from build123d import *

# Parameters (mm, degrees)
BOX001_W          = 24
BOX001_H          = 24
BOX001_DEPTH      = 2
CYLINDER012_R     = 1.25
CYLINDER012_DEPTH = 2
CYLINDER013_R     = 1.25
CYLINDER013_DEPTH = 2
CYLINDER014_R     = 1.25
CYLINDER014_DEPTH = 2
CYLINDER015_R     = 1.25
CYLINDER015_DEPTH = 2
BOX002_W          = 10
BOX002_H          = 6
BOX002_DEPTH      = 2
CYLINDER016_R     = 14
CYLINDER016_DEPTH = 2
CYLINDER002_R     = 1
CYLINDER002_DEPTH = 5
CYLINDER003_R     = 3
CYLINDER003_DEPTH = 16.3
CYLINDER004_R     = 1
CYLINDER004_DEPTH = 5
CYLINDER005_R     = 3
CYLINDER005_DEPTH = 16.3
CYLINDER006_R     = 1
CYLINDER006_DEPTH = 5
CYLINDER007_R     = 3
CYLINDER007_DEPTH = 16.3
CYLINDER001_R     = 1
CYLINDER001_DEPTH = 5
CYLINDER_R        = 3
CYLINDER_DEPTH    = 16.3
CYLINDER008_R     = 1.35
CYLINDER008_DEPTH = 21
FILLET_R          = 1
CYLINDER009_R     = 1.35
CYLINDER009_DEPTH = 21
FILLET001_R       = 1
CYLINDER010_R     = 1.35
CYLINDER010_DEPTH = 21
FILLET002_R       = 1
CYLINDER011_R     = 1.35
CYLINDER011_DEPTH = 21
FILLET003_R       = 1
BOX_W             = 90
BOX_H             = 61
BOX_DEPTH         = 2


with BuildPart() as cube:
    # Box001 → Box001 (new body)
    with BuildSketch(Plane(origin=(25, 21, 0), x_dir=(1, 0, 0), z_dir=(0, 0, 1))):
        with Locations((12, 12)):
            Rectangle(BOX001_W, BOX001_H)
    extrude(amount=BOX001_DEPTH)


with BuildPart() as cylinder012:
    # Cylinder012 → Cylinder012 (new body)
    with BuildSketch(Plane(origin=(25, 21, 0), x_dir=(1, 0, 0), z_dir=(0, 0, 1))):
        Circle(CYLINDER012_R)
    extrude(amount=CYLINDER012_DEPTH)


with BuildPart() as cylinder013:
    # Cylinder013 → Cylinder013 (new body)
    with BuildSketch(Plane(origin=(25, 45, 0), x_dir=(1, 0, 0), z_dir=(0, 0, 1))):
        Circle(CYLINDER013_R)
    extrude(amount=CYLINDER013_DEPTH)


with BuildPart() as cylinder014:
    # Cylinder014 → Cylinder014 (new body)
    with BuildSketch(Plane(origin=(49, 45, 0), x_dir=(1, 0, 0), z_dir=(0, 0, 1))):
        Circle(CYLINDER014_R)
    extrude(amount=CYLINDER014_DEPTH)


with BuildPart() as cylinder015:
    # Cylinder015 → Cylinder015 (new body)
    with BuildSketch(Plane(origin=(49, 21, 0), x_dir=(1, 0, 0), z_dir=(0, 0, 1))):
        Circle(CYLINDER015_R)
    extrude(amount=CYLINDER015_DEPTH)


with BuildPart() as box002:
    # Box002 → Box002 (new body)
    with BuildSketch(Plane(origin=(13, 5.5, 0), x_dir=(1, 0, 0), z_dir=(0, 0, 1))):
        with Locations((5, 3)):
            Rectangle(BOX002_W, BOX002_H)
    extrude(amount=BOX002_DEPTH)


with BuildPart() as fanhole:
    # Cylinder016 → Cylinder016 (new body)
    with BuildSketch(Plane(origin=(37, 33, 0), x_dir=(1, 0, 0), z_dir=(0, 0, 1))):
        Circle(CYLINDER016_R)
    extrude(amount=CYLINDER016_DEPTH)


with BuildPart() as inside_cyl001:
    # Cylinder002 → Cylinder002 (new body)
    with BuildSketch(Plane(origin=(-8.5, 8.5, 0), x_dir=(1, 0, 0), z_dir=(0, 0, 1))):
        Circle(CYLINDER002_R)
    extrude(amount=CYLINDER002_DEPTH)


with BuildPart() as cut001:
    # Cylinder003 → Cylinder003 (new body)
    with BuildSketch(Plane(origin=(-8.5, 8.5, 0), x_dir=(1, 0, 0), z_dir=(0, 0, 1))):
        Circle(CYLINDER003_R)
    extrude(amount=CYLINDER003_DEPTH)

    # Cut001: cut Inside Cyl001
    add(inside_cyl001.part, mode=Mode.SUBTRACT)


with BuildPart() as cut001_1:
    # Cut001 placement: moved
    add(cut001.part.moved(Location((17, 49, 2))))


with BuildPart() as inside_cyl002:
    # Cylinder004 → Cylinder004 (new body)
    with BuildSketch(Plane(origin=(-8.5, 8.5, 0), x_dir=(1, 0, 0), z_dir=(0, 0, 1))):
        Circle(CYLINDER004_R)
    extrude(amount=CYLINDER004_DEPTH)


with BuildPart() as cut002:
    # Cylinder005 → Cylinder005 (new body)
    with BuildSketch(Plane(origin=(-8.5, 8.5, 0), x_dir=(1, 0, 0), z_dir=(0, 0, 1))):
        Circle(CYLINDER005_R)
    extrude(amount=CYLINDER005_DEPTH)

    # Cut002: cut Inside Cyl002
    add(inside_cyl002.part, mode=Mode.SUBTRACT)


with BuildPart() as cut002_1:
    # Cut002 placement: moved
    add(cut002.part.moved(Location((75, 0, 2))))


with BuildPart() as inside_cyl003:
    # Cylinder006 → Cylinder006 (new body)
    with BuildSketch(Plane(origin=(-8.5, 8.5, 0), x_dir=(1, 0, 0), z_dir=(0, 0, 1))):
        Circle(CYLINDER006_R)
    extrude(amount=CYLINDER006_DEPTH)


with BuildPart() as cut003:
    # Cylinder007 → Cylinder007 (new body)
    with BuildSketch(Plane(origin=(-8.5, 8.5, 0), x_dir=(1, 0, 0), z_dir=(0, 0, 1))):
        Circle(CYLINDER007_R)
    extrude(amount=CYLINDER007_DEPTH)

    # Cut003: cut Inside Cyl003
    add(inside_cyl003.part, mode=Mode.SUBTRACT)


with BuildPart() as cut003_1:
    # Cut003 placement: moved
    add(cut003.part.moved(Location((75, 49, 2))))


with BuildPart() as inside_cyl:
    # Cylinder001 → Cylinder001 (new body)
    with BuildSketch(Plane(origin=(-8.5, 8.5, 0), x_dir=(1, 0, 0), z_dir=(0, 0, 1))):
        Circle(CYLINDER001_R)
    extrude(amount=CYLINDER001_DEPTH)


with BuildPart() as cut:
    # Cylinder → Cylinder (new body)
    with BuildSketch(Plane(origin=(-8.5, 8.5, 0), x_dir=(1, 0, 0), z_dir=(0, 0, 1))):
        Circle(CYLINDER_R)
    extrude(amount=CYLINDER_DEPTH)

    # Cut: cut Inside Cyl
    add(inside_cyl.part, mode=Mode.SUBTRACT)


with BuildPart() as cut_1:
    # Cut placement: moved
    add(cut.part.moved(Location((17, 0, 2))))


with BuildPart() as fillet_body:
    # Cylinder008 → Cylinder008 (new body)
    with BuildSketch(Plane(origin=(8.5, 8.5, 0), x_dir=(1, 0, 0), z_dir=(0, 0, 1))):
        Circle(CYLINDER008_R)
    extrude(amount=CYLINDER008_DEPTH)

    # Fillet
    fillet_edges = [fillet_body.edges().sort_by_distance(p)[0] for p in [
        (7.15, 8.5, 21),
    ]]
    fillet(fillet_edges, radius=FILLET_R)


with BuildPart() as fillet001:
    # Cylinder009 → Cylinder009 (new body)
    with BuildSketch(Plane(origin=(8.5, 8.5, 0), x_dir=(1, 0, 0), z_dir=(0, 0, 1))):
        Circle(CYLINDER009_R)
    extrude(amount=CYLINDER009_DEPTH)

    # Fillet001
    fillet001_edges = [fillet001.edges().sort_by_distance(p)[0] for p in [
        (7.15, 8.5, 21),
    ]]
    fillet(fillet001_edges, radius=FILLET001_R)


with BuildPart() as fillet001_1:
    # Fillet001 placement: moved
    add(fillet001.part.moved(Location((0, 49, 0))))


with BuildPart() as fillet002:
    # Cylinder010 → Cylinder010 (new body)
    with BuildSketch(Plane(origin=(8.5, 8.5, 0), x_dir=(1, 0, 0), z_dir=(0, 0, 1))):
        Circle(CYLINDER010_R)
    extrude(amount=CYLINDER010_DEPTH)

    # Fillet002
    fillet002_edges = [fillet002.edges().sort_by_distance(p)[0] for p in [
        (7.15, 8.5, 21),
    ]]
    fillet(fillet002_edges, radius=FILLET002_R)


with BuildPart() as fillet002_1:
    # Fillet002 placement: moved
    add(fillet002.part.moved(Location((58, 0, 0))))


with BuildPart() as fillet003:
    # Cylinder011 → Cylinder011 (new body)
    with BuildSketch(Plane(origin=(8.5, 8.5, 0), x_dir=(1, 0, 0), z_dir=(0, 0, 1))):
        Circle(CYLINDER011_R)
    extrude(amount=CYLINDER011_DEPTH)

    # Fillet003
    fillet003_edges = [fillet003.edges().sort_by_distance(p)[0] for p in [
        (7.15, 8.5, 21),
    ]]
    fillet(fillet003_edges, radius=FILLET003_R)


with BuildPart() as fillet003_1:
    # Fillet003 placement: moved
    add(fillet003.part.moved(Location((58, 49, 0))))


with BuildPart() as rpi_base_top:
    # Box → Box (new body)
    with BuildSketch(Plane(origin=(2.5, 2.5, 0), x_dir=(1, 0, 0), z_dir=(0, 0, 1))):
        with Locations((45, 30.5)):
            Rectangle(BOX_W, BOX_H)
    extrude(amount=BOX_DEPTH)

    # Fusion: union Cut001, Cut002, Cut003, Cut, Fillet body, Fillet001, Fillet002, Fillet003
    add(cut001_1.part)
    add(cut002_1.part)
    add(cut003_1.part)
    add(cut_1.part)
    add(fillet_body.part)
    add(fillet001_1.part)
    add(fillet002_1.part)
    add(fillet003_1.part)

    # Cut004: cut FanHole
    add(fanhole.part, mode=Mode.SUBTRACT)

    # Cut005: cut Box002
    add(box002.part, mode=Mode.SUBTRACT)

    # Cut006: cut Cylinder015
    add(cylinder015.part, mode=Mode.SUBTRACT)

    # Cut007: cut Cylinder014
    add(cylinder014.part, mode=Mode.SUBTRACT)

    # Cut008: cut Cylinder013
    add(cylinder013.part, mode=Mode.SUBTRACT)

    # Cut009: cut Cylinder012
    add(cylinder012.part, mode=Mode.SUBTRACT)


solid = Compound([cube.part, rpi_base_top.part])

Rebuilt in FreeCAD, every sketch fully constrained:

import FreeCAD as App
import Part
import Sketcher

V = App.Vector


def edges_at(feature, points):
    """Names of the edges that pass closest to the given points."""
    edges = feature.Shape.Edges
    near = lambda p: min(range(len(edges)), key=lambda i: edges[i].distToShape(Part.Vertex(*p))[0])
    return sorted({f"Edge{near(p) + 1}" for p in points})


def add_polygon(sketch, points):
    """Adds a closed chain of lines whose ends are joined by coincident constraints."""
    first, n = sketch.GeometryCount, len(points)
    for a, b in zip(points, points[1:] + points[:1]):
        sketch.addGeometry(Part.LineSegment(App.Vector(*a, 0), App.Vector(*b, 0)), False)
    for i in range(n):
        sketch.addConstraint(Sketcher.Constraint("Coincident", first + i, 2, first + (i + 1) % n, 1))

doc = App.newDocument("Part")
body = doc.addObject("PartDesign::Body", "Body")

# Sketch on XY plane
sketch1 = body.newObject("Sketcher::SketchObject", "Sketch")
sketch1.AttachmentSupport = (doc.getObject("XY_Plane"), [""])
sketch1.MapMode = "FlatFace"
add_polygon(sketch1, [(25, 45), (25, 21), (49, 21), (49, 45)])  # lines 0-3
sketch1.addConstraint([
    Sketcher.Constraint("Vertical", 0),
    Sketcher.Constraint("Horizontal", 1),
    Sketcher.Constraint("Vertical", 2),
    Sketcher.Constraint("Horizontal", 3),
    Sketcher.Constraint("Equal", 3, 0),
    Sketcher.Constraint("DistanceX", 1, 1, 1, 2, 24.0),
    Sketcher.Constraint("DistanceX", -1, 1, 0, 2, 25.0),
    Sketcher.Constraint("DistanceY", -1, 1, 0, 2, 21.0),
])
pad1 = body.newObject("PartDesign::Pad", "Pad")
pad1.Profile = sketch1
pad1.Length = 2
body2 = doc.addObject("PartDesign::Body", "Body001")

# Sketch on XY plane
sketch2 = body2.newObject("Sketcher::SketchObject", "Sketch001")
sketch2.AttachmentSupport = (doc.getObject("XY_Plane001"), [""])
sketch2.MapMode = "FlatFace"
sketch2.addGeometry(Part.Circle(V(25, 21, 0), V(0, 0, 1), 1.2), False)
sketch2.addConstraint([
    Sketcher.Constraint("Diameter", 0, 2.5),
    Sketcher.Constraint("DistanceX", -1, 1, 0, 3, 25.0),
    Sketcher.Constraint("DistanceY", -1, 1, 0, 3, 21.0),
])
pad2 = body2.newObject("PartDesign::Pad", "Pad001")
pad2.Profile = sketch2
pad2.Length = 2
body3 = doc.addObject("PartDesign::Body", "Body002")

# Sketch on XY plane
sketch3 = body3.newObject("Sketcher::SketchObject", "Sketch002")
sketch3.AttachmentSupport = (doc.getObject("XY_Plane002"), [""])
sketch3.MapMode = "FlatFace"
sketch3.addGeometry(Part.Circle(V(25, 45, 0), V(0, 0, 1), 1.2), False)
sketch3.addConstraint([
    Sketcher.Constraint("Diameter", 0, 2.5),
    Sketcher.Constraint("DistanceX", -1, 1, 0, 3, 25.0),
    Sketcher.Constraint("DistanceY", -1, 1, 0, 3, 45.0),
])
pad3 = body3.newObject("PartDesign::Pad", "Pad002")
pad3.Profile = sketch3
pad3.Length = 2
body4 = doc.addObject("PartDesign::Body", "Body003")

# Sketch on XY plane
sketch4 = body4.newObject("Sketcher::SketchObject", "Sketch003")
sketch4.AttachmentSupport = (doc.getObject("XY_Plane003"), [""])
sketch4.MapMode = "FlatFace"
sketch4.addGeometry(Part.Circle(V(49, 45, 0), V(0, 0, 1), 1.2), False)
sketch4.addConstraint([
    Sketcher.Constraint("Diameter", 0, 2.5),
    Sketcher.Constraint("DistanceX", -1, 1, 0, 3, 49.0),
    Sketcher.Constraint("DistanceY", -1, 1, 0, 3, 45.0),
])
pad4 = body4.newObject("PartDesign::Pad", "Pad003")
pad4.Profile = sketch4
pad4.Length = 2
body5 = doc.addObject("PartDesign::Body", "Body004")

# Sketch on XY plane
sketch5 = body5.newObject("Sketcher::SketchObject", "Sketch004")
sketch5.AttachmentSupport = (doc.getObject("XY_Plane004"), [""])
sketch5.MapMode = "FlatFace"
sketch5.addGeometry(Part.Circle(V(49, 21, 0), V(0, 0, 1), 1.2), False)
sketch5.addConstraint([
    Sketcher.Constraint("Diameter", 0, 2.5),
    Sketcher.Constraint("DistanceX", -1, 1, 0, 3, 49.0),
    Sketcher.Constraint("DistanceY", -1, 1, 0, 3, 21.0),
])
pad5 = body5.newObject("PartDesign::Pad", "Pad004")
pad5.Profile = sketch5
pad5.Length = 2
body6 = doc.addObject("PartDesign::Body", "Body005")

# Sketch on XY plane
sketch6 = body6.newObject("Sketcher::SketchObject", "Sketch005")
sketch6.AttachmentSupport = (doc.getObject("XY_Plane005"), [""])
sketch6.MapMode = "FlatFace"
add_polygon(sketch6, [(13, 12), (13, 6), (23, 6), (23, 12)])  # lines 0-3
sketch6.addConstraint([
    Sketcher.Constraint("Vertical", 0),
    Sketcher.Constraint("Horizontal", 1),
    Sketcher.Constraint("Vertical", 2),
    Sketcher.Constraint("Horizontal", 3),
    Sketcher.Constraint("DistanceX", 1, 1, 1, 2, 10.0),
    Sketcher.Constraint("DistanceY", 0, 2, 0, 1, 6.0),
    Sketcher.Constraint("DistanceX", -1, 1, 0, 2, 13.0),
    Sketcher.Constraint("DistanceY", -1, 1, 0, 2, 5.5),
])
pad6 = body6.newObject("PartDesign::Pad", "Pad005")
pad6.Profile = sketch6
pad6.Length = 2
body7 = doc.addObject("PartDesign::Body", "Body006")

# Sketch on XY plane
sketch7 = body7.newObject("Sketcher::SketchObject", "Sketch006")
sketch7.AttachmentSupport = (doc.getObject("XY_Plane006"), [""])
sketch7.MapMode = "FlatFace"
sketch7.addGeometry(Part.Circle(V(37, 33, 0), V(0, 0, 1), 14), False)
sketch7.addConstraint([
    Sketcher.Constraint("Diameter", 0, 28.0),
    Sketcher.Constraint("DistanceX", -1, 1, 0, 3, 37.0),
    Sketcher.Constraint("DistanceY", -1, 1, 0, 3, 33.0),
])
pad7 = body7.newObject("PartDesign::Pad", "Pad006")
pad7.Profile = sketch7
pad7.Length = 2
body8 = doc.addObject("PartDesign::Body", "Body007")

# Sketch on XY plane
sketch8 = body8.newObject("Sketcher::SketchObject", "Sketch007")
sketch8.AttachmentSupport = (doc.getObject("XY_Plane007"), [""])
sketch8.MapMode = "FlatFace"
sketch8.addGeometry(Part.Circle(V(-8.5, 8.5, 0), V(0, 0, 1), 1), False)
sketch8.addConstraint([
    Sketcher.Constraint("Diameter", 0, 2.0),
    Sketcher.Constraint("DistanceX", 0, 3, -1, 1, 8.5),
    Sketcher.Constraint("DistanceY", -1, 1, 0, 3, 8.5),
])
pad8 = body8.newObject("PartDesign::Pad", "Pad007")
pad8.Profile = sketch8
pad8.Length = 5
body9 = doc.addObject("PartDesign::Body", "Body008")

# Sketch on XY plane
sketch9 = body9.newObject("Sketcher::SketchObject", "Sketch008")
sketch9.AttachmentSupport = (doc.getObject("XY_Plane008"), [""])
sketch9.MapMode = "FlatFace"
sketch9.addGeometry(Part.Circle(V(-8.5, 8.5, 0), V(0, 0, 1), 3), False)
sketch9.addConstraint([
    Sketcher.Constraint("Diameter", 0, 6.0),
    Sketcher.Constraint("DistanceX", 0, 3, -1, 1, 8.5),
    Sketcher.Constraint("DistanceY", -1, 1, 0, 3, 8.5),
])
pad9 = body9.newObject("PartDesign::Pad", "Pad008")
pad9.Profile = sketch9
pad9.Length = 16.3
doc.recompute()

boolean = body9.newObject("PartDesign::Boolean", "Boolean")
boolean.Type = "Cut"
boolean.addObjects([body8])
body10 = doc.addObject("PartDesign::Body", "Body009")
doc.recompute()

body9.Placement = App.Placement(V(17, 49, 2), App.Rotation(V(0, 0, 1), 0))
boolean2 = body10.newObject("PartDesign::Boolean", "Boolean001")
boolean2.Type = "Fuse"
boolean2.addObjects([body9])
body11 = doc.addObject("PartDesign::Body", "Body010")

# Sketch on XY plane
sketch10 = body11.newObject("Sketcher::SketchObject", "Sketch009")
sketch10.AttachmentSupport = (doc.getObject("XY_Plane010"), [""])
sketch10.MapMode = "FlatFace"
sketch10.addGeometry(Part.Circle(V(-8.5, 8.5, 0), V(0, 0, 1), 1), False)
sketch10.addConstraint([
    Sketcher.Constraint("Diameter", 0, 2.0),
    Sketcher.Constraint("DistanceX", 0, 3, -1, 1, 8.5),
    Sketcher.Constraint("DistanceY", -1, 1, 0, 3, 8.5),
])
pad10 = body11.newObject("PartDesign::Pad", "Pad009")
pad10.Profile = sketch10
pad10.Length = 5
body12 = doc.addObject("PartDesign::Body", "Body011")

# Sketch on XY plane
sketch11 = body12.newObject("Sketcher::SketchObject", "Sketch010")
sketch11.AttachmentSupport = (doc.getObject("XY_Plane011"), [""])
sketch11.MapMode = "FlatFace"
sketch11.addGeometry(Part.Circle(V(-8.5, 8.5, 0), V(0, 0, 1), 3), False)
sketch11.addConstraint([
    Sketcher.Constraint("Diameter", 0, 6.0),
    Sketcher.Constraint("DistanceX", 0, 3, -1, 1, 8.5),
    Sketcher.Constraint("DistanceY", -1, 1, 0, 3, 8.5),
])
pad11 = body12.newObject("PartDesign::Pad", "Pad010")
pad11.Profile = sketch11
pad11.Length = 16.3
doc.recompute()

boolean3 = body12.newObject("PartDesign::Boolean", "Boolean002")
boolean3.Type = "Cut"
boolean3.addObjects([body11])
body13 = doc.addObject("PartDesign::Body", "Body012")
doc.recompute()

body12.Placement = App.Placement(V(75, 0, 2), App.Rotation(V(0, 0, 1), 0))
boolean4 = body13.newObject("PartDesign::Boolean", "Boolean003")
boolean4.Type = "Fuse"
boolean4.addObjects([body12])
body14 = doc.addObject("PartDesign::Body", "Body013")

# Sketch on XY plane
sketch12 = body14.newObject("Sketcher::SketchObject", "Sketch011")
sketch12.AttachmentSupport = (doc.getObject("XY_Plane013"), [""])
sketch12.MapMode = "FlatFace"
sketch12.addGeometry(Part.Circle(V(-8.5, 8.5, 0), V(0, 0, 1), 1), False)
sketch12.addConstraint([
    Sketcher.Constraint("Diameter", 0, 2.0),
    Sketcher.Constraint("DistanceX", 0, 3, -1, 1, 8.5),
    Sketcher.Constraint("DistanceY", -1, 1, 0, 3, 8.5),
])
pad12 = body14.newObject("PartDesign::Pad", "Pad011")
pad12.Profile = sketch12
pad12.Length = 5
body15 = doc.addObject("PartDesign::Body", "Body014")

# Sketch on XY plane
sketch13 = body15.newObject("Sketcher::SketchObject", "Sketch012")
sketch13.AttachmentSupport = (doc.getObject("XY_Plane014"), [""])
sketch13.MapMode = "FlatFace"
sketch13.addGeometry(Part.Circle(V(-8.5, 8.5, 0), V(0, 0, 1), 3), False)
sketch13.addConstraint([
    Sketcher.Constraint("Diameter", 0, 6.0),
    Sketcher.Constraint("DistanceX", 0, 3, -1, 1, 8.5),
    Sketcher.Constraint("DistanceY", -1, 1, 0, 3, 8.5),
])
pad13 = body15.newObject("PartDesign::Pad", "Pad012")
pad13.Profile = sketch13
pad13.Length = 16.3
doc.recompute()

boolean5 = body15.newObject("PartDesign::Boolean", "Boolean004")
boolean5.Type = "Cut"
boolean5.addObjects([body14])
body16 = doc.addObject("PartDesign::Body", "Body015")
doc.recompute()

body15.Placement = App.Placement(V(75, 49, 2), App.Rotation(V(0, 0, 1), 0))
boolean6 = body16.newObject("PartDesign::Boolean", "Boolean005")
boolean6.Type = "Fuse"
boolean6.addObjects([body15])
body17 = doc.addObject("PartDesign::Body", "Body016")

# Sketch on XY plane
sketch14 = body17.newObject("Sketcher::SketchObject", "Sketch013")
sketch14.AttachmentSupport = (doc.getObject("XY_Plane016"), [""])
sketch14.MapMode = "FlatFace"
sketch14.addGeometry(Part.Circle(V(-8.5, 8.5, 0), V(0, 0, 1), 1), False)
sketch14.addConstraint([
    Sketcher.Constraint("Diameter", 0, 2.0),
    Sketcher.Constraint("DistanceX", 0, 3, -1, 1, 8.5),
    Sketcher.Constraint("DistanceY", -1, 1, 0, 3, 8.5),
])
pad14 = body17.newObject("PartDesign::Pad", "Pad013")
pad14.Profile = sketch14
pad14.Length = 5
body18 = doc.addObject("PartDesign::Body", "Body017")

# Sketch on XY plane
sketch15 = body18.newObject("Sketcher::SketchObject", "Sketch014")
sketch15.AttachmentSupport = (doc.getObject("XY_Plane017"), [""])
sketch15.MapMode = "FlatFace"
sketch15.addGeometry(Part.Circle(V(-8.5, 8.5, 0), V(0, 0, 1), 3), False)
sketch15.addConstraint([
    Sketcher.Constraint("Diameter", 0, 6.0),
    Sketcher.Constraint("DistanceX", 0, 3, -1, 1, 8.5),
    Sketcher.Constraint("DistanceY", -1, 1, 0, 3, 8.5),
])
pad15 = body18.newObject("PartDesign::Pad", "Pad014")
pad15.Profile = sketch15
pad15.Length = 16.3
doc.recompute()

boolean7 = body18.newObject("PartDesign::Boolean", "Boolean006")
boolean7.Type = "Cut"
boolean7.addObjects([body17])
body19 = doc.addObject("PartDesign::Body", "Body018")
doc.recompute()

body18.Placement = App.Placement(V(17, 0, 2), App.Rotation(V(0, 0, 1), 0))
boolean8 = body19.newObject("PartDesign::Boolean", "Boolean007")
boolean8.Type = "Fuse"
boolean8.addObjects([body18])
body20 = doc.addObject("PartDesign::Body", "Body019")

# Sketch on XY plane
sketch16 = body20.newObject("Sketcher::SketchObject", "Sketch015")
sketch16.AttachmentSupport = (doc.getObject("XY_Plane019"), [""])
sketch16.MapMode = "FlatFace"
sketch16.addGeometry(Part.Circle(V(8.5, 8.5, 0), V(0, 0, 1), 1.4), False)
sketch16.addConstraint([
    Sketcher.Constraint("Diameter", 0, 2.7),
    Sketcher.Constraint("DistanceX", -1, 1, 0, 3, 8.5),
    Sketcher.Constraint("DistanceY", -1, 1, 0, 3, 8.5),
])
pad16 = body20.newObject("PartDesign::Pad", "Pad015")
pad16.Profile = sketch16
pad16.Length = 21
doc.recompute()

fillet = body20.newObject("PartDesign::Fillet", "Fillet")
fillet.Base = (pad16, edges_at(pad16, [(7.15, 8.5, 21)]))
fillet.Radius = 1
body21 = doc.addObject("PartDesign::Body", "Body020")

# Sketch on XY plane
sketch17 = body21.newObject("Sketcher::SketchObject", "Sketch016")
sketch17.AttachmentSupport = (doc.getObject("XY_Plane020"), [""])
sketch17.MapMode = "FlatFace"
sketch17.addGeometry(Part.Circle(V(8.5, 8.5, 0), V(0, 0, 1), 1.4), False)
sketch17.addConstraint([
    Sketcher.Constraint("Diameter", 0, 2.7),
    Sketcher.Constraint("DistanceX", -1, 1, 0, 3, 8.5),
    Sketcher.Constraint("DistanceY", -1, 1, 0, 3, 8.5),
])
pad17 = body21.newObject("PartDesign::Pad", "Pad016")
pad17.Profile = sketch17
pad17.Length = 21
doc.recompute()

fillet2 = body21.newObject("PartDesign::Fillet", "Fillet001")
fillet2.Base = (pad17, edges_at(pad17, [(7.15, 8.5, 21)]))
fillet2.Radius = 1
body22 = doc.addObject("PartDesign::Body", "Body021")
doc.recompute()

body21.Placement = App.Placement(V(0, 49, 0), App.Rotation(V(0, 0, 1), 0))
boolean9 = body22.newObject("PartDesign::Boolean", "Boolean008")
boolean9.Type = "Fuse"
boolean9.addObjects([body21])
body23 = doc.addObject("PartDesign::Body", "Body022")

# Sketch on XY plane
sketch18 = body23.newObject("Sketcher::SketchObject", "Sketch017")
sketch18.AttachmentSupport = (doc.getObject("XY_Plane022"), [""])
sketch18.MapMode = "FlatFace"
sketch18.addGeometry(Part.Circle(V(8.5, 8.5, 0), V(0, 0, 1), 1.4), False)
sketch18.addConstraint([
    Sketcher.Constraint("Diameter", 0, 2.7),
    Sketcher.Constraint("DistanceX", -1, 1, 0, 3, 8.5),
    Sketcher.Constraint("DistanceY", -1, 1, 0, 3, 8.5),
])
pad18 = body23.newObject("PartDesign::Pad", "Pad017")
pad18.Profile = sketch18
pad18.Length = 21
doc.recompute()

fillet3 = body23.newObject("PartDesign::Fillet", "Fillet002")
fillet3.Base = (pad18, edges_at(pad18, [(7.15, 8.5, 21)]))
fillet3.Radius = 1
body24 = doc.addObject("PartDesign::Body", "Body023")
doc.recompute()

body23.Placement = App.Placement(V(58, 0, 0), App.Rotation(V(0, 0, 1), 0))
boolean10 = body24.newObject("PartDesign::Boolean", "Boolean009")
boolean10.Type = "Fuse"
boolean10.addObjects([body23])
body25 = doc.addObject("PartDesign::Body", "Body024")

# Sketch on XY plane
sketch19 = body25.newObject("Sketcher::SketchObject", "Sketch018")
sketch19.AttachmentSupport = (doc.getObject("XY_Plane024"), [""])
sketch19.MapMode = "FlatFace"
sketch19.addGeometry(Part.Circle(V(8.5, 8.5, 0), V(0, 0, 1), 1.4), False)
sketch19.addConstraint([
    Sketcher.Constraint("Diameter", 0, 2.7),
    Sketcher.Constraint("DistanceX", -1, 1, 0, 3, 8.5),
    Sketcher.Constraint("DistanceY", -1, 1, 0, 3, 8.5),
])
pad19 = body25.newObject("PartDesign::Pad", "Pad018")
pad19.Profile = sketch19
pad19.Length = 21
doc.recompute()

fillet4 = body25.newObject("PartDesign::Fillet", "Fillet003")
fillet4.Base = (pad19, edges_at(pad19, [(7.15, 8.5, 21)]))
fillet4.Radius = 1
body26 = doc.addObject("PartDesign::Body", "Body025")
doc.recompute()

body25.Placement = App.Placement(V(58, 49, 0), App.Rotation(V(0, 0, 1), 0))
boolean11 = body26.newObject("PartDesign::Boolean", "Boolean010")
boolean11.Type = "Fuse"
boolean11.addObjects([body25])
body27 = doc.addObject("PartDesign::Body", "Body026")

# Sketch on XY plane
sketch20 = body27.newObject("Sketcher::SketchObject", "Sketch019")
sketch20.AttachmentSupport = (doc.getObject("XY_Plane026"), [""])
sketch20.MapMode = "FlatFace"
add_polygon(sketch20, [(2, 64), (2, 2), (92, 2), (92, 64)])  # lines 0-3
sketch20.addConstraint([
    Sketcher.Constraint("Vertical", 0),
    Sketcher.Constraint("Horizontal", 1),
    Sketcher.Constraint("Vertical", 2),
    Sketcher.Constraint("Horizontal", 3),
    Sketcher.Constraint("DistanceX", 1, 1, 1, 2, 90.0),
    Sketcher.Constraint("DistanceY", 0, 2, 0, 1, 61.0),
    Sketcher.Constraint("DistanceX", -1, 1, 0, 2, 2.5),
    Sketcher.Constraint("DistanceY", -1, 1, 0, 2, 2.5),
])
pad20 = body27.newObject("PartDesign::Pad", "Pad019")
pad20.Profile = sketch20
pad20.Length = 2
doc.recompute()

boolean12 = body27.newObject("PartDesign::Boolean", "Boolean011")
boolean12.Type = "Fuse"
boolean12.addObjects([body10])
doc.recompute()

boolean13 = body27.newObject("PartDesign::Boolean", "Boolean012")
boolean13.Type = "Fuse"
boolean13.addObjects([body13])
doc.recompute()

boolean14 = body27.newObject("PartDesign::Boolean", "Boolean013")
boolean14.Type = "Fuse"
boolean14.addObjects([body16])
doc.recompute()

boolean15 = body27.newObject("PartDesign::Boolean", "Boolean014")
boolean15.Type = "Fuse"
boolean15.addObjects([body19])
doc.recompute()

boolean16 = body27.newObject("PartDesign::Boolean", "Boolean015")
boolean16.Type = "Fuse"
boolean16.addObjects([body20])
doc.recompute()

boolean17 = body27.newObject("PartDesign::Boolean", "Boolean016")
boolean17.Type = "Fuse"
boolean17.addObjects([body22])
doc.recompute()

boolean18 = body27.newObject("PartDesign::Boolean", "Boolean017")
boolean18.Type = "Fuse"
boolean18.addObjects([body24])
doc.recompute()

boolean19 = body27.newObject("PartDesign::Boolean", "Boolean018")
boolean19.Type = "Fuse"
boolean19.addObjects([body26])
doc.recompute()

boolean20 = body27.newObject("PartDesign::Boolean", "Boolean019")
boolean20.Type = "Cut"
boolean20.addObjects([body7])
doc.recompute()

boolean21 = body27.newObject("PartDesign::Boolean", "Boolean020")
boolean21.Type = "Cut"
boolean21.addObjects([body6])
doc.recompute()

boolean22 = body27.newObject("PartDesign::Boolean", "Boolean021")
boolean22.Type = "Cut"
boolean22.addObjects([body5])
doc.recompute()

boolean23 = body27.newObject("PartDesign::Boolean", "Boolean022")
boolean23.Type = "Cut"
boolean23.addObjects([body4])
doc.recompute()

boolean24 = body27.newObject("PartDesign::Boolean", "Boolean023")
boolean24.Type = "Cut"
boolean24.addObjects([body3])
doc.recompute()

boolean25 = body27.newObject("PartDesign::Boolean", "Boolean024")
boolean25.Type = "Cut"
boolean25.addObjects([body2])

doc.recompute()
